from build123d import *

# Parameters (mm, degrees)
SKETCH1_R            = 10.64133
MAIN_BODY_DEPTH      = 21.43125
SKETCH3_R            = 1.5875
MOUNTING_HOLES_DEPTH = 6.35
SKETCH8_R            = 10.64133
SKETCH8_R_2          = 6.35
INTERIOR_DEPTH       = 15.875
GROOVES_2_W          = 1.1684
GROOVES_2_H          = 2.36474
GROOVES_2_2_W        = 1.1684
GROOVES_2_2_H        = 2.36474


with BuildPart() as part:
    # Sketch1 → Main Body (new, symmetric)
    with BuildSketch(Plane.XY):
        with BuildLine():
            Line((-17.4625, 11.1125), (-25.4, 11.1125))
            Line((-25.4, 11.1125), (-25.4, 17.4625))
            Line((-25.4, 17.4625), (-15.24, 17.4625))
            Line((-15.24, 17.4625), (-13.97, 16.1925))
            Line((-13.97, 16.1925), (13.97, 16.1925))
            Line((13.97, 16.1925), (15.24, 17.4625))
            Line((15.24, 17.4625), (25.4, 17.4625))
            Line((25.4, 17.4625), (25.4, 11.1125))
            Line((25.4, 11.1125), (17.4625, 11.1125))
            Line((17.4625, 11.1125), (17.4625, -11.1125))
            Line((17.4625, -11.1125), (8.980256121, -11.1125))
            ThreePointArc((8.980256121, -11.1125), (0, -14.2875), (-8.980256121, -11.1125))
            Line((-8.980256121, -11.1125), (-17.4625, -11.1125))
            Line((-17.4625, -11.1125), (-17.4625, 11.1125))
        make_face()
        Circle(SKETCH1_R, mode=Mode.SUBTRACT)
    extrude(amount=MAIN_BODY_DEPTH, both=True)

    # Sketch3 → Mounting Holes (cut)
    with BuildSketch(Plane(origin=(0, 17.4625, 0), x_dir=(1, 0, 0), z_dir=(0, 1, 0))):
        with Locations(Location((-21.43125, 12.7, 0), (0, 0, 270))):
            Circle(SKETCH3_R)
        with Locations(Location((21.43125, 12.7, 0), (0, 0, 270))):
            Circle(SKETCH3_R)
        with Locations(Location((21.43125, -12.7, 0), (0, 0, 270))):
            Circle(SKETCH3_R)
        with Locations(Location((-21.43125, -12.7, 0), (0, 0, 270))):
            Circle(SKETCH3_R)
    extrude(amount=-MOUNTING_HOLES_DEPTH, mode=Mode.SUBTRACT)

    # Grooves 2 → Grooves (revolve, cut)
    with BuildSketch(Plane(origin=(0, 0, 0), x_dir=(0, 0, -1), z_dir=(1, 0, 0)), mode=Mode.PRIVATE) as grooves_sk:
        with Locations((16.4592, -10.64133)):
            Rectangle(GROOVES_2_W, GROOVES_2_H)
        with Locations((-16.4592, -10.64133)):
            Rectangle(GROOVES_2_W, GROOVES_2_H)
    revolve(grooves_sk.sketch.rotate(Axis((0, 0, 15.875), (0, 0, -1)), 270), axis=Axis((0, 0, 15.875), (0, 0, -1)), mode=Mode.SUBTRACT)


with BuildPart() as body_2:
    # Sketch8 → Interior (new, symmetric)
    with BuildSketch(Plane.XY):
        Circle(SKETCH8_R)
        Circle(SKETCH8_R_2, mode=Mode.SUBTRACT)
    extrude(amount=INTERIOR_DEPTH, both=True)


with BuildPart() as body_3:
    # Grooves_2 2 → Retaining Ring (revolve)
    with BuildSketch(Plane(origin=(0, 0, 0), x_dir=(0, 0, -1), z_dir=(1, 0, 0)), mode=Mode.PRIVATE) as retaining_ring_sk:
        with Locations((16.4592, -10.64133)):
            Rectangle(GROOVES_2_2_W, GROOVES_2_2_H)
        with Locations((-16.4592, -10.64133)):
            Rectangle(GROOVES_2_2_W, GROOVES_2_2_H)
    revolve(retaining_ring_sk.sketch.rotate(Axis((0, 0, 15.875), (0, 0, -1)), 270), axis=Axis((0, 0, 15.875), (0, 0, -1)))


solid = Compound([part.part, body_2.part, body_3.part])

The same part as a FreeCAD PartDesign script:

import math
import FreeCAD as App
import Part
import Sketcher
Q = App.Units.Quantity

doc = App.newDocument("Part")
body = doc.addObject("PartDesign::Body", "Body")

# Sketch on XY plane
sketch1 = body.newObject("Sketcher::SketchObject", "Sketch")
sketch1.AttachmentSupport = (doc.getObject("XY_Plane"), [""])
sketch1.MapMode = "FlatFace"
sketch1.addGeometry([
    Part.LineSegment(App.Vector(-25.4, 11.1, 0), App.Vector(-17.5, 11.1, 0)),  # 0
    Part.LineSegment(App.Vector(-17.5, 11.1, 0), App.Vector(-17.5, -11.1, 0)),  # 1
    Part.LineSegment(App.Vector(-17.5, -11.1, 0), App.Vector(-9, -11.1, 0)),  # 2
    Part.ArcOfCircle(Part.Circle(App.Vector(0, 0, 0), App.Vector(0, 0, 1), 14.3), math.radians(-129), math.radians(-51)),  # 3
    Part.LineSegment(App.Vector(9, -11.1, 0), App.Vector(17.5, -11.1, 0)),  # 4
    Part.LineSegment(App.Vector(17.5, -11.1, 0), App.Vector(17.5, 11.1, 0)),  # 5
    Part.LineSegment(App.Vector(17.5, 11.1, 0), App.Vector(25.4, 11.1, 0)),  # 6
    Part.LineSegment(App.Vector(25.4, 11.1, 0), App.Vector(25.4, 17.5, 0)),  # 7
    Part.LineSegment(App.Vector(25.4, 17.5, 0), App.Vector(15.2, 17.5, 0)),  # 8
    Part.LineSegment(App.Vector(15.2, 17.5, 0), App.Vector(14, 16.2, 0)),  # 9
    Part.LineSegment(App.Vector(14, 16.2, 0), App.Vector(-14, 16.2, 0)),  # 10
    Part.LineSegment(App.Vector(-14, 16.2, 0), App.Vector(-15.2, 17.5, 0)),  # 11
    Part.LineSegment(App.Vector(-15.2, 17.5, 0), App.Vector(-25.4, 17.5, 0)),  # 12
    Part.LineSegment(App.Vector(-25.4, 17.5, 0), App.Vector(-25.4, 11.1, 0)),  # 13
    Part.Circle(App.Vector(0, 0, 0), App.Vector(0, 0, 1), 10.6),  # 14
], False)
sketch1.addConstraint([
    Sketcher.Constraint("Coincident", 0, 2, 1, 1),
    Sketcher.Constraint("Coincident", 1, 2, 2, 1),
    Sketcher.Constraint("Coincident", 2, 2, 3, 1),
    Sketcher.Constraint("Coincident", 3, 2, 4, 1),
    Sketcher.Constraint("Coincident", 4, 2, 5, 1),
    Sketcher.Constraint("Coincident", 5, 2, 6, 1),
    Sketcher.Constraint("Coincident", 6, 2, 7, 1),
    Sketcher.Constraint("Coincident", 7, 2, 8, 1),
    Sketcher.Constraint("Coincident", 8, 2, 9, 1),
    Sketcher.Constraint("Coincident", 9, 2, 10, 1),
    Sketcher.Constraint("Coincident", 10, 2, 11, 1),
    Sketcher.Constraint("Coincident", 11, 2, 12, 1),
    Sketcher.Constraint("Coincident", 12, 2, 13, 1),
    Sketcher.Constraint("Coincident", 13, 2, 0, 1),
    Sketcher.Constraint("Horizontal", 0),
    Sketcher.Constraint("Vertical", 1),
    Sketcher.Constraint("Horizontal", 2),
    Sketcher.Constraint("Horizontal", 4),
    Sketcher.Constraint("Vertical", 5),
    Sketcher.Constraint("Horizontal", 6),
    Sketcher.Constraint("Vertical", 7),
    Sketcher.Constraint("Horizontal", 8),
    Sketcher.Constraint("Horizontal", 10),
    Sketcher.Constraint("Horizontal", 12),
    Sketcher.Constraint("Vertical", 13),
    Sketcher.Constraint("Coincident", 3, 3, -1, 1),
    Sketcher.Constraint("Coincident", 14, 3, -1, 1),
    Sketcher.Constraint("Symmetric", 0, 2, 4, 2, -1, 1),
    Sketcher.Constraint("Symmetric", 8, 2, 11, 2, -2),
    Sketcher.Constraint("Symmetric", 6, 2, 13, 2, -2),
    Sketcher.Constraint("Perpendicular", 9, 11),
    Sketcher.Constraint("Horizontal", 2, 2, 3, 2),
    Sketcher.Constraint("Equal", 9, 11),
    Sketcher.Constraint("DistanceX", 8, 2, 8, 1, Q("0.4 in")),
    Sketcher.Constraint("DistanceX", 10, 2, 10, 1, Q("1.1 in")),
    Sketcher.Constraint("DistanceX", -1, 1, 6, 2, Q("1 in")),
    Sketcher.Constraint("Radius", 3, Q("0.5625 in")),
    Sketcher.Constraint("Diameter", 14, Q("0.8379 in")),
    Sketcher.Constraint("DistanceY", 7, 1, 7, 2, Q("0.25 in")),
    Sketcher.Constraint("DistanceX", 0, 1, 0, 2, Q("0.3125 in")),
    Sketcher.Constraint("DistanceY", 1, 2, 1, 1, Q("0.875 in")),
])
pad1 = body.newObject("PartDesign::Pad", "Pad")
pad1.Profile = sketch1
pad1.Length = Q("1.6875 in")
pad1.Midplane = True

# Sketch on XZ plane
sketch2 = body.newObject("Sketcher::SketchObject", "Sketch001")
sketch2.AttachmentSupport = (doc.getObject("XZ_Plane"), [""])
sketch2.MapMode = "FlatFace"
sketch2.AttachmentOffset = App.Placement(App.Vector(0, 0, -0.6875 * 25.4), App.Rotation())
sketch2.addGeometry([
    Part.Circle(App.Vector(-21.4, -12.7, 0), App.Vector(0, 0, 1), 1.6),
    Part.Circle(App.Vector(21.4, -12.7, 0), App.Vector(0, 0, 1), 1.6),
    Part.Circle(App.Vector(21.4, 12.7, 0), App.Vector(0, 0, 1), 1.6),
    Part.Circle(App.Vector(-21.4, 12.7, 0), App.Vector(0, 0, 1), 1.6),
], False)
sketch2.addConstraint([
    Sketcher.Constraint("Equal", 0, 1),
    Sketcher.Constraint("Equal", 1, 2),
    Sketcher.Constraint("Equal", 2, 3),
    Sketcher.Constraint("Symmetric", 0, 3, 2, 3, -1, 1),
    Sketcher.Constraint("Symmetric", 1, 3, 3, 3, -1, 1),
    Sketcher.Constraint("Symmetric", 0, 3, 1, 3, -2),
    Sketcher.Constraint("Diameter", 0, Q("0.125 in")),
    Sketcher.Constraint("DistanceY", 1, 3, 2, 3, Q("1 in")),
    Sketcher.Constraint("DistanceX", 0, 3, -1, 1, Q("0.84375 in")),
])
pocket1 = body.newObject("PartDesign::Pocket", "Pocket")
pocket1.Profile = sketch2
pocket1.Length = Q("0.25 in")
pocket1.Reversed = True

# Sketch on YZ plane
sketch3 = body.newObject("Sketcher::SketchObject", "Sketch002")
sketch3.AttachmentSupport = (doc.getObject("YZ_Plane"), [""])
sketch3.MapMode = "FlatFace"
sketch3.addGeometry([
    Part.LineSegment(App.Vector(-9.5, -15.9, 0), App.Vector(-11.8, -15.9, 0)),  # 0
    Part.LineSegment(App.Vector(-11.8, -15.9, 0), App.Vector(-11.8, -17, 0)),  # 1
    Part.LineSegment(App.Vector(-11.8, -17, 0), App.Vector(-9.5, -17, 0)),  # 2
    Part.LineSegment(App.Vector(-9.5, -17, 0), App.Vector(-9.5, -15.9, 0)),  # 3
    Part.LineSegment(App.Vector(-9.5, 17, 0), App.Vector(-11.8, 17, 0)),  # 4
    Part.LineSegment(App.Vector(-11.8, 17, 0), App.Vector(-11.8, 15.9, 0)),  # 5
    Part.LineSegment(App.Vector(-11.8, 15.9, 0), App.Vector(-9.5, 15.9, 0)),  # 6
    Part.LineSegment(App.Vector(-9.5, 15.9, 0), App.Vector(-9.5, 17, 0)),  # 7
], False)
sketch3.addConstraint([
    Sketcher.Constraint("Coincident", 0, 2, 1, 1),
    Sketcher.Constraint("Coincident", 1, 2, 2, 1),
    Sketcher.Constraint("Coincident", 2, 2, 3, 1),
    Sketcher.Constraint("Coincident", 3, 2, 0, 1),
    Sketcher.Constraint("Coincident", 4, 2, 5, 1),
    Sketcher.Constraint("Coincident", 5, 2, 6, 1),
    Sketcher.Constraint("Coincident", 6, 2, 7, 1),
    Sketcher.Constraint("Coincident", 7, 2, 4, 1),
    Sketcher.Constraint("Horizontal", 0),
    Sketcher.Constraint("Vertical", 1),
    Sketcher.Constraint("Horizontal", 2),
    Sketcher.Constraint("Vertical", 3),
    Sketcher.Constraint("Horizontal", 4),
    Sketcher.Constraint("Vertical", 5),
    Sketcher.Constraint("Horizontal", 6),
    Sketcher.Constraint("Vertical", 7),
    Sketcher.Constraint("Symmetric", 1, 2, 4, 2, -1),
    Sketcher.Constraint("Symmetric", 3, 2, 6, 2, -1),
    Sketcher.Constraint("DistanceY", 1, 2, 1, 1, Q("0.046 in")),
    Sketcher.Constraint("DistanceY", 0, 2, 5, 2, Q("1.25 in")),
    Sketcher.Constraint("DistanceX", 0, 2, 0, 1, Q("0.0931 in")),
    Sketcher.Constraint("DistanceX", 0, 2, -1, 1, Q("0.4655 in")),
])
groove = body.newObject("PartDesign::Groove", "Groove")
groove.Profile = sketch3
groove.ReferenceAxis = (sketch3, ["V_Axis"])
groove.Angle = 360
body2 = doc.addObject("PartDesign::Body", "Body001")

# Sketch on XY plane
sketch4 = body2.newObject("Sketcher::SketchObject", "Sketch003")
sketch4.AttachmentSupport = (doc.getObject("XY_Plane001"), [""])
sketch4.MapMode = "FlatFace"
sketch4.addGeometry([
    Part.Circle(App.Vector(0, 0, 0), App.Vector(0, 0, 1), 11),
    Part.Circle(App.Vector(0, 0, 0), App.Vector(0, 0, 1), 6),
], False)
sketch4.addConstraint([
    Sketcher.Constraint("Coincident", 0, 3, -1, 1),
    Sketcher.Constraint("Coincident", 1, 3, -1, 1),
    Sketcher.Constraint("Diameter", 1, Q("0.5 in")),
    Sketcher.Constraint("Diameter", 0, Q("0.8379 in")),
])
pad2 = body2.newObject("PartDesign::Pad", "Pad001")
pad2.Profile = sketch4
pad2.Length = Q("1.25 in")
pad2.Midplane = True
body3 = doc.addObject("PartDesign::Body", "Body002")
body3.AllowCompound = True

# Sketch on YZ plane
sketch5 = body3.newObject("Sketcher::SketchObject", "Sketch004")
sketch5.AttachmentSupport = (doc.getObject("YZ_Plane002"), [""])
sketch5.MapMode = "FlatFace"
sketch5.addGeometry([
    Part.LineSegment(App.Vector(-9.5, -15.9, 0), App.Vector(-11.8, -15.9, 0)),  # 0
    Part.LineSegment(App.Vector(-11.8, -15.9, 0), App.Vector(-11.8, -17, 0)),  # 1
    Part.LineSegment(App.Vector(-11.8, -17, 0), App.Vector(-9.5, -17, 0)),  # 2
    Part.LineSegment(App.Vector(-9.5, -17, 0), App.Vector(-9.5, -15.9, 0)),  # 3
    Part.LineSegment(App.Vector(-9.5, 17, 0), App.Vector(-11.8, 17, 0)),  # 4
    Part.LineSegment(App.Vector(-11.8, 17, 0), App.Vector(-11.8, 15.9, 0)),  # 5
    Part.LineSegment(App.Vector(-11.8, 15.9, 0), App.Vector(-9.5, 15.9, 0)),  # 6
    Part.LineSegment(App.Vector(-9.5, 15.9, 0), App.Vector(-9.5, 17, 0)),  # 7
], False)
sketch5.addConstraint([
    Sketcher.Constraint("Coincident", 0, 2, 1, 1),
    Sketcher.Constraint("Coincident", 1, 2, 2, 1),
    Sketcher.Constraint("Coincident", 2, 2, 3, 1),
    Sketcher.Constraint("Coincident", 3, 2, 0, 1),
    Sketcher.Constraint("Coincident", 4, 2, 5, 1),
    Sketcher.Constraint("Coincident", 5, 2, 6, 1),
    Sketcher.Constraint("Coincident", 6, 2, 7, 1),
    Sketcher.Constraint("Coincident", 7, 2, 4, 1),
    Sketcher.Constraint("Horizontal", 0),
    Sketcher.Constraint("Vertical", 1),
    Sketcher.Constraint("Horizontal", 2),
    Sketcher.Constraint("Vertical", 3),
    Sketcher.Constraint("Horizontal", 4),
    Sketcher.Constraint("Vertical", 5),
    Sketcher.Constraint("Horizontal", 6),
    Sketcher.Constraint("Vertical", 7),
    Sketcher.Constraint("Symmetric", 1, 2, 4, 2, -1),
    Sketcher.Constraint("Symmetric", 3, 2, 6, 2, -1),
    Sketcher.Constraint("DistanceY", 1, 2, 1, 1, Q("0.046 in")),
    Sketcher.Constraint("DistanceY", 0, 2, 5, 2, Q("1.25 in")),
    Sketcher.Constraint("DistanceX", 0, 2, 0, 1, Q("0.0931 in")),
    Sketcher.Constraint("DistanceX", 0, 2, -1, 1, Q("0.4655 in")),
])
revolution = body3.newObject("PartDesign::Revolution", "Revolution")
revolution.Profile = sketch5
revolution.ReferenceAxis = (sketch5, ["V_Axis"])
revolution.Angle = 360

doc.recompute()
